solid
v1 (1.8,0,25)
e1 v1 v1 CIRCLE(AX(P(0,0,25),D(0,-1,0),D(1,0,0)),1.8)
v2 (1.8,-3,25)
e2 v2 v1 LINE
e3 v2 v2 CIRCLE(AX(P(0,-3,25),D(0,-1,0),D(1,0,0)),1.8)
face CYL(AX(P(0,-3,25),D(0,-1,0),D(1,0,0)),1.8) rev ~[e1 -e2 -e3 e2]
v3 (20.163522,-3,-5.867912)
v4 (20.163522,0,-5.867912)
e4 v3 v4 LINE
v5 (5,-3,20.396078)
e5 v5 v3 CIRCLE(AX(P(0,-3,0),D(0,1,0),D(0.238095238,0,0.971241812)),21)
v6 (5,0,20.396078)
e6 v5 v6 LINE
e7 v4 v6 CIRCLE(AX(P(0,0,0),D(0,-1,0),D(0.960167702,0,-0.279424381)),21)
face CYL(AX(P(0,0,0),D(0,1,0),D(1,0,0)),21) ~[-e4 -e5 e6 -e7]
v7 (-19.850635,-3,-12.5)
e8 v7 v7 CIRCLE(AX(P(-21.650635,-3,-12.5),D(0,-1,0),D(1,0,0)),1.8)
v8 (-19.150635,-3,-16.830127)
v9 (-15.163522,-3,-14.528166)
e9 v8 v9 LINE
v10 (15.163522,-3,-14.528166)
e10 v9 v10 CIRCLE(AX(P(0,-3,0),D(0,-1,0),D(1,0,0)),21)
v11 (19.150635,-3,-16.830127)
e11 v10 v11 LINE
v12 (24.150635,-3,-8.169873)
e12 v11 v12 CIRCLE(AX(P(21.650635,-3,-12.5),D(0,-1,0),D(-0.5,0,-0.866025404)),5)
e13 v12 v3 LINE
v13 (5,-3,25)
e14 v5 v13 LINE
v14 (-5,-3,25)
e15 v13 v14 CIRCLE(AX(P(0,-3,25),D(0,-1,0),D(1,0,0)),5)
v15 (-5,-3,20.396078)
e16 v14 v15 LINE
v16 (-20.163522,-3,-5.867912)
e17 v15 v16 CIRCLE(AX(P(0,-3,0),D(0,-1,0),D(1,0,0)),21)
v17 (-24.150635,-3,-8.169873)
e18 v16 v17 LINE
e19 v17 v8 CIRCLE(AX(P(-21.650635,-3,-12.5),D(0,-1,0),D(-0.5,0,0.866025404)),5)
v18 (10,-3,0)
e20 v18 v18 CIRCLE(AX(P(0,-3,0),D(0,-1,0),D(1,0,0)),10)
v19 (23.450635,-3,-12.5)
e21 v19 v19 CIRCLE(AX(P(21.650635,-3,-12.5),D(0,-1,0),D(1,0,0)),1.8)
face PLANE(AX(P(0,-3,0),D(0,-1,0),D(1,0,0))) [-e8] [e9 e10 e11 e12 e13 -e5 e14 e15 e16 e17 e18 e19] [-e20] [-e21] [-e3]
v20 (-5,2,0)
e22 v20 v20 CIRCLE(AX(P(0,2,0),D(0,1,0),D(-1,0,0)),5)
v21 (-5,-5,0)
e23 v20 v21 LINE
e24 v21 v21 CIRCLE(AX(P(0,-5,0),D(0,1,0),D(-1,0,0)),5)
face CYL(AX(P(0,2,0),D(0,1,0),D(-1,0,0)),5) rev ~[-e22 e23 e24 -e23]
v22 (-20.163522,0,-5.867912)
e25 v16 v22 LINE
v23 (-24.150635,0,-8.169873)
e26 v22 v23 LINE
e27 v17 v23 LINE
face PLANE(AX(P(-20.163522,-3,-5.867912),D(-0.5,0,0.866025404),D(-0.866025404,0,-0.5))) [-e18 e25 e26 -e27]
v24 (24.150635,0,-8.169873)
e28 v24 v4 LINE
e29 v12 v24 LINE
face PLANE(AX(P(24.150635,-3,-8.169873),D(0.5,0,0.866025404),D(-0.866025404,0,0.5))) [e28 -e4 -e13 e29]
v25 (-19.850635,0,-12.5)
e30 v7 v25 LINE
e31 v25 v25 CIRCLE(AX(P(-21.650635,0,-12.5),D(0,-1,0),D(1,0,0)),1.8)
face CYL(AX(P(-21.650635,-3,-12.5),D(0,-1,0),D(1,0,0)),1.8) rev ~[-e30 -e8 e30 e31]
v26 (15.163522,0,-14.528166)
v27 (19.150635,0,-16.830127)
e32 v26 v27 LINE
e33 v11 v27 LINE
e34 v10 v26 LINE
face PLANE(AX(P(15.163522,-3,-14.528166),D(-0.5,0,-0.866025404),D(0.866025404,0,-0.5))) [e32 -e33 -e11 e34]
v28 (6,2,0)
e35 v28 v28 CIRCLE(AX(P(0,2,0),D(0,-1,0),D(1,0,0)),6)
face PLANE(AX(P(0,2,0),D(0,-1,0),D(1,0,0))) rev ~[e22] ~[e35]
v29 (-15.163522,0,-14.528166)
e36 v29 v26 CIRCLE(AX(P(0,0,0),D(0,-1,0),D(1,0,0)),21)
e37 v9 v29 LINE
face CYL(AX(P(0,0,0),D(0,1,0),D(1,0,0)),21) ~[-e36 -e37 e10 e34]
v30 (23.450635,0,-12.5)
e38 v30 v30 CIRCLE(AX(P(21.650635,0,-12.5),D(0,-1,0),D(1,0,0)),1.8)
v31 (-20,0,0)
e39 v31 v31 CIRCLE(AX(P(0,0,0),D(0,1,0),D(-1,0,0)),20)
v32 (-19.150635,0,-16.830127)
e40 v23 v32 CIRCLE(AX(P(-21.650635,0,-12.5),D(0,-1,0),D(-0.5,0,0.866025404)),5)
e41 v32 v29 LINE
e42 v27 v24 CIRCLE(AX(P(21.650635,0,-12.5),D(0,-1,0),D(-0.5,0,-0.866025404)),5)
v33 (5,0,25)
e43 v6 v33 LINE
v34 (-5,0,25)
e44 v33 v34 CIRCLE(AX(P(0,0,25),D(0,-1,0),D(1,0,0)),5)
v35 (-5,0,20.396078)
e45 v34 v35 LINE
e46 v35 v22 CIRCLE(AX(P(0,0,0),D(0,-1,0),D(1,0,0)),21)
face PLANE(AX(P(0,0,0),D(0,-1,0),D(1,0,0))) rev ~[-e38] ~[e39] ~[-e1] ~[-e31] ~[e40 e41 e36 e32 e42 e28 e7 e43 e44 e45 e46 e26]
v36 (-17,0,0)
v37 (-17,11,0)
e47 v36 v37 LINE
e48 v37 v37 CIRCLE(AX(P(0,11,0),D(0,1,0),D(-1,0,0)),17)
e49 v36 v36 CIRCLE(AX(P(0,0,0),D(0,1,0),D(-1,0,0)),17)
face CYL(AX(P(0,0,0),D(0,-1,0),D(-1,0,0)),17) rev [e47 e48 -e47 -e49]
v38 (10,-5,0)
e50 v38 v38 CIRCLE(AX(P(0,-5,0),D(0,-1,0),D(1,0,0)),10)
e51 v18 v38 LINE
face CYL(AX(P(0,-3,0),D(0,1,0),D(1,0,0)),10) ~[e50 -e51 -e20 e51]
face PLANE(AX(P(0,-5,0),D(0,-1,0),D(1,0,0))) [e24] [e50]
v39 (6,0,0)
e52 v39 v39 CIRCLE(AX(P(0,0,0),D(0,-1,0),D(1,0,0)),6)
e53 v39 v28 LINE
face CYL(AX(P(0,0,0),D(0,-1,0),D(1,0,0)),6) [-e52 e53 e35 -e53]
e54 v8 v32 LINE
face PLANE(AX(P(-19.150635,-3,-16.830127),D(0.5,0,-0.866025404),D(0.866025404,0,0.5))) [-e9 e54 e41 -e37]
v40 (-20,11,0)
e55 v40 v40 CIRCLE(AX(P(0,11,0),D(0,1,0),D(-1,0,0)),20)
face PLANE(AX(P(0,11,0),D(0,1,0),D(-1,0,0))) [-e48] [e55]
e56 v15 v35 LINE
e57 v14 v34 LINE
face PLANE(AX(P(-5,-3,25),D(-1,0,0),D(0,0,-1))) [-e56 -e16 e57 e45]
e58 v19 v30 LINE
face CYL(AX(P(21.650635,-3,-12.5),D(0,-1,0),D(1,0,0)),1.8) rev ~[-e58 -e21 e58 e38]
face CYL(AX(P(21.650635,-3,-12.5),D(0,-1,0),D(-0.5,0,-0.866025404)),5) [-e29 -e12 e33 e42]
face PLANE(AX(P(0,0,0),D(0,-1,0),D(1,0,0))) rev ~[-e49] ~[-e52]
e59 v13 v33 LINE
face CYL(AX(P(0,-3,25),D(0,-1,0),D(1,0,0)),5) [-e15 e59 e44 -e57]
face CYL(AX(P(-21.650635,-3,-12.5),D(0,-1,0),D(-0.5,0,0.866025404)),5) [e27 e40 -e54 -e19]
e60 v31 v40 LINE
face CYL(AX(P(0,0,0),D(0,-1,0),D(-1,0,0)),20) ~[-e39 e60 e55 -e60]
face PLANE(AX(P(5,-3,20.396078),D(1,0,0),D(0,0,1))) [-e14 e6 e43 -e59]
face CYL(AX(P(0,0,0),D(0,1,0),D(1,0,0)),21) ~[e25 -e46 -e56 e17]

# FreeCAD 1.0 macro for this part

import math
import FreeCAD as App
import Part
import Sketcher

V = App.Vector
Q = App.Units.Quantity

doc = App.newDocument("Part")
params = doc.addObject("Spreadsheet::Sheet", "Params")
for row, (alias, value) in enumerate([
    ("sketch1_diameter", "42 mm"),
    ("pad1_length", "3 mm"),
    ("sketch2_radius", "5 mm"),
    ("sketch2_radius2", "21 mm"),
    ("sketch2_diameter", "3.6 mm"),
    ("pad2_length", "3 mm"),
    ("sketch3_diameter", "40 mm"),
    ("sketch3_diameter2", "34 mm"),
    ("pad3_length", "11 mm"),
    ("sketch4_diameter", "12 mm"),
    ("pad4_length", "2 mm"),
    ("sketch5_diameter", "20 mm"),
    ("pad5_length", "2 mm"),
    ("sketch6_diameter", "10 mm"),
    ("pocket1_length", "46.6 mm"),
], start=1):
    params.set(f"A{row}", alias)
    params.set(f"B{row}", "=" + value)
    params.setAlias(f"B{row}", alias)

body = doc.addObject("PartDesign::Body", "Body")

sketch1 = doc.addObject("Sketcher::SketchObject", "Sketch")
body.addObject(sketch1)
sketch1.AttachmentSupport = (doc.XZ_Plane, [""])
sketch1.MapMode = "FlatFace"
sketch1.addGeometry(Part.Circle(V(0, 0, 0), V(0, 0, 1), 21), False)
sketch1.addConstraint([
    Sketcher.Constraint("Coincident", 0, 3, -1, 1),
    Sketcher.Constraint("Diameter", 0, Q("42 mm")),
])
sketch1.setExpression("Constraints[1]", "Params.sketch1_diameter")
pad1 = doc.addObject("PartDesign::Pad", "Pad")
body.addObject(pad1)
pad1.Profile = sketch1
pad1.setExpression("Length", "Params.pad1_length")

sketch2 = doc.addObject("Sketcher::SketchObject", "Sketch001")
body.addObject(sketch2)
sketch2.AttachmentSupport = (doc.XZ_Plane, [""])
sketch2.MapMode = "FlatFace"
sketch2.AttachmentOffset = App.Placement(V(0, 0, 3), App.Rotation())
sketch2.addGeometry([
    Part.LineSegment(V(5, 20.4, 0), V(5, 25, 0)),
    Part.ArcOfCircle(Part.Circle(V(0, 25, 0), V(0, 0, 1), 5), math.radians(0), math.radians(180)),
    Part.LineSegment(V(-5, 25, 0), V(-5, 20.4, 0)),
    Part.ArcOfCircle(Part.Circle(V(0, 0, 0), V(0, 0, 1), 21), math.radians(76), math.radians(104)),
    Part.Circle(V(0, 25, 0), V(0, 0, 1), 1.8),
    Part.LineSegment(V(24.2, -8.2, 0), V(20.2, -5.9, 0)),
    Part.ArcOfCircle(Part.Circle(V(0, 0, 0), V(0, 0, 1), 21), math.radians(-44), math.radians(-16)),
    Part.LineSegment(V(15.2, -14.5, 0), V(19.2, -16.8, 0)),
    Part.ArcOfCircle(Part.Circle(V(21.7, -12.5, 0), V(0, 0, 1), 5), math.radians(-120), math.radians(60)),
    Part.Circle(V(21.7, -12.5, 0), V(0, 0, 1), 1.8),
    Part.ArcOfCircle(Part.Circle(V(0, 0, 0), V(0, 0, 1), 21), math.radians(-164), math.radians(-136)),
    Part.LineSegment(V(-20.2, -5.9, 0), V(-24.2, -8.2, 0)),
    Part.ArcOfCircle(Part.Circle(V(-21.7, -12.5, 0), V(0, 0, 1), 5), math.radians(120), math.radians(300)),
    Part.LineSegment(V(-19.2, -16.8, 0), V(-15.2, -14.5, 0)),
    Part.Circle(V(-21.7, -12.5, 0), V(0, 0, 1), 1.8),
], False)
sketch2.addConstraint([
    Sketcher.Constraint("Tangent", 0, 2, 1, 1),
    Sketcher.Constraint("Tangent", 1, 2, 2, 1),
    Sketcher.Constraint("Coincident", 2, 2, 3, 2),
    Sketcher.Constraint("Coincident", 3, 1, 0, 1),
    Sketcher.Constraint("Coincident", 5, 2, 6, 2),
    Sketcher.Constraint("Coincident", 6, 1, 7, 1),
    Sketcher.Constraint("Tangent", 7, 2, 8, 1),
    Sketcher.Constraint("Tangent", 8, 2, 5, 1),
    Sketcher.Constraint("Coincident", 10, 1, 11, 1),
    Sketcher.Constraint("Tangent", 11, 2, 12, 1),
    Sketcher.Constraint("Tangent", 12, 2, 13, 1),
    Sketcher.Constraint("Coincident", 13, 2, 10, 2),
    Sketcher.Constraint("Vertical", 0),
    Sketcher.Constraint("Vertical", 2),
    Sketcher.Constraint("Coincident", 3, 3, -1, 1),
    Sketcher.Constraint("Coincident", 6, 3, -1, 1),
    Sketcher.Constraint("Coincident", 10, 3, -1, 1),
    Sketcher.Constraint("Coincident", 4, 3, 1, 3),
    Sketcher.Constraint("Coincident", 9, 3, 8, 3),
    Sketcher.Constraint("Coincident", 14, 3, 12, 3),
    Sketcher.Constraint("Equal", 3, 6),
    Sketcher.Constraint("Equal", 1, 8),
    Sketcher.Constraint("Equal", 4, 9),
    Sketcher.Constraint("Equal", 6, 10),
    Sketcher.Constraint("Equal", 8, 12),
    Sketcher.Constraint("Equal", 9, 14),
    Sketcher.Constraint("Symmetric", 8, 3, 12, 3, -2),
    Sketcher.Constraint("PointOnObject", 1, 3, -2),
    Sketcher.Constraint("Parallel", 5, 7),
    Sketcher.Constraint("Parallel", 11, 13),
    Sketcher.Constraint("Horizontal", 5, 2, 10, 1),
    Sketcher.Constraint("Equal", 5, 7),
    Sketcher.Constraint("Radius", 1, Q("5 mm")),
    Sketcher.Constraint("Radius", 3, Q("21 mm")),
    Sketcher.Constraint("Diameter", 4, Q("3.6 mm")),
    Sketcher.Constraint("Angle", 5, Q("150 deg")),
    Sketcher.Constraint("DistanceY", -1, 1, 1, 3, Q("25 mm")),
    Sketcher.Constraint("DistanceY", 8, 3, -1, 1, Q("12.5 mm")),
])
sketch2.setExpression("Constraints[32]", "Params.sketch2_radius")
sketch2.setExpression("Constraints[33]", "Params.sketch2_radius2")
sketch2.setExpression("Constraints[34]", "Params.sketch2_diameter")
pad2 = doc.addObject("PartDesign::Pad", "Pad001")
body.addObject(pad2)
pad2.Profile = sketch2
pad2.setExpression("Length", "Params.pad2_length")
pad2.Reversed = True

sketch3 = doc.addObject("Sketcher::SketchObject", "Sketch002")
body.addObject(sketch3)
sketch3.AttachmentSupport = (doc.XZ_Plane, [""])
sketch3.MapMode = "FlatFace"
sketch3.addGeometry([
    Part.Circle(V(0, 0, 0), V(0, 0, 1), 20),
    Part.Circle(V(0, 0, 0), V(0, 0, 1), 17),
], False)
sketch3.addConstraint([
    Sketcher.Constraint("Coincident", 0, 3, -1, 1),
    Sketcher.Constraint("Coincident", 1, 3, -1, 1),
    Sketcher.Constraint("Diameter", 0, Q("40 mm")),
    Sketcher.Constraint("Diameter", 1, Q("34 mm")),
])
sketch3.setExpression("Constraints[2]", "Params.sketch3_diameter")
sketch3.setExpression("Constraints[3]", "Params.sketch3_diameter2")
pad3 = doc.addObject("PartDesign::Pad", "Pad002")
body.addObject(pad3)
pad3.Profile = sketch3
pad3.setExpression("Length", "Params.pad3_length")
pad3.Reversed = True

sketch4 = doc.addObject("Sketcher::SketchObject", "Sketch003")
body.addObject(sketch4)
sketch4.AttachmentSupport = (doc.XZ_Plane, [""])
sketch4.MapMode = "FlatFace"
sketch4.addGeometry(Part.Circle(V(0, 0, 0), V(0, 0, 1), 6), False)
sketch4.addConstraint([
    Sketcher.Constraint("Coincident", 0, 3, -1, 1),
    Sketcher.Constraint("Diameter", 0, Q("12 mm")),
])
sketch4.setExpression("Constraints[1]", "Params.sketch4_diameter")
pad4 = doc.addObject("PartDesign::Pad", "Pad003")
body.addObject(pad4)
pad4.Profile = sketch4
pad4.setExpression("Length", "Params.pad4_length")
pad4.Reversed = True

sketch5 = doc.addObject("Sketcher::SketchObject", "Sketch004")
body.addObject(sketch5)
sketch5.AttachmentSupport = (doc.XZ_Plane, [""])
sketch5.MapMode = "FlatFace"
sketch5.AttachmentOffset = App.Placement(V(0, 0, 3), App.Rotation())
sketch5.addGeometry(Part.Circle(V(0, 0, 0), V(0, 0, 1), 10), False)
sketch5.addConstraint([
    Sketcher.Constraint("Coincident", 0, 3, -1, 1),
    Sketcher.Constraint("Diameter", 0, Q("20 mm")),
])
sketch5.setExpression("Constraints[1]", "Params.sketch5_diameter")
pad5 = doc.addObject("PartDesign::Pad", "Pad004")
body.addObject(pad5)
pad5.Profile = sketch5
pad5.setExpression("Length", "Params.pad5_length")

sketch6 = doc.addObject("Sketcher::SketchObject", "Sketch005")
body.addObject(sketch6)
sketch6.AttachmentSupport = (doc.XZ_Plane, [""])
sketch6.MapMode = "FlatFace"
sketch6.AttachmentOffset = App.Placement(V(0, 0, -2), App.Rotation())
sketch6.addGeometry(Part.Circle(V(0, 0, 0), V(0, 0, 1), 5), False)
sketch6.addConstraint([
    Sketcher.Constraint("Coincident", 0, 3, -1, 1),
    Sketcher.Constraint("Diameter", 0, Q("10 mm")),
])
sketch6.setExpression("Constraints[1]", "Params.sketch6_diameter")
pocket1 = doc.addObject("PartDesign::Pocket", "Pocket")
body.addObject(pocket1)
pocket1.Profile = sketch6
pocket1.setExpression("Length", "Params.pocket1_length")
pocket1.Reversed = True

doc.recompute()
